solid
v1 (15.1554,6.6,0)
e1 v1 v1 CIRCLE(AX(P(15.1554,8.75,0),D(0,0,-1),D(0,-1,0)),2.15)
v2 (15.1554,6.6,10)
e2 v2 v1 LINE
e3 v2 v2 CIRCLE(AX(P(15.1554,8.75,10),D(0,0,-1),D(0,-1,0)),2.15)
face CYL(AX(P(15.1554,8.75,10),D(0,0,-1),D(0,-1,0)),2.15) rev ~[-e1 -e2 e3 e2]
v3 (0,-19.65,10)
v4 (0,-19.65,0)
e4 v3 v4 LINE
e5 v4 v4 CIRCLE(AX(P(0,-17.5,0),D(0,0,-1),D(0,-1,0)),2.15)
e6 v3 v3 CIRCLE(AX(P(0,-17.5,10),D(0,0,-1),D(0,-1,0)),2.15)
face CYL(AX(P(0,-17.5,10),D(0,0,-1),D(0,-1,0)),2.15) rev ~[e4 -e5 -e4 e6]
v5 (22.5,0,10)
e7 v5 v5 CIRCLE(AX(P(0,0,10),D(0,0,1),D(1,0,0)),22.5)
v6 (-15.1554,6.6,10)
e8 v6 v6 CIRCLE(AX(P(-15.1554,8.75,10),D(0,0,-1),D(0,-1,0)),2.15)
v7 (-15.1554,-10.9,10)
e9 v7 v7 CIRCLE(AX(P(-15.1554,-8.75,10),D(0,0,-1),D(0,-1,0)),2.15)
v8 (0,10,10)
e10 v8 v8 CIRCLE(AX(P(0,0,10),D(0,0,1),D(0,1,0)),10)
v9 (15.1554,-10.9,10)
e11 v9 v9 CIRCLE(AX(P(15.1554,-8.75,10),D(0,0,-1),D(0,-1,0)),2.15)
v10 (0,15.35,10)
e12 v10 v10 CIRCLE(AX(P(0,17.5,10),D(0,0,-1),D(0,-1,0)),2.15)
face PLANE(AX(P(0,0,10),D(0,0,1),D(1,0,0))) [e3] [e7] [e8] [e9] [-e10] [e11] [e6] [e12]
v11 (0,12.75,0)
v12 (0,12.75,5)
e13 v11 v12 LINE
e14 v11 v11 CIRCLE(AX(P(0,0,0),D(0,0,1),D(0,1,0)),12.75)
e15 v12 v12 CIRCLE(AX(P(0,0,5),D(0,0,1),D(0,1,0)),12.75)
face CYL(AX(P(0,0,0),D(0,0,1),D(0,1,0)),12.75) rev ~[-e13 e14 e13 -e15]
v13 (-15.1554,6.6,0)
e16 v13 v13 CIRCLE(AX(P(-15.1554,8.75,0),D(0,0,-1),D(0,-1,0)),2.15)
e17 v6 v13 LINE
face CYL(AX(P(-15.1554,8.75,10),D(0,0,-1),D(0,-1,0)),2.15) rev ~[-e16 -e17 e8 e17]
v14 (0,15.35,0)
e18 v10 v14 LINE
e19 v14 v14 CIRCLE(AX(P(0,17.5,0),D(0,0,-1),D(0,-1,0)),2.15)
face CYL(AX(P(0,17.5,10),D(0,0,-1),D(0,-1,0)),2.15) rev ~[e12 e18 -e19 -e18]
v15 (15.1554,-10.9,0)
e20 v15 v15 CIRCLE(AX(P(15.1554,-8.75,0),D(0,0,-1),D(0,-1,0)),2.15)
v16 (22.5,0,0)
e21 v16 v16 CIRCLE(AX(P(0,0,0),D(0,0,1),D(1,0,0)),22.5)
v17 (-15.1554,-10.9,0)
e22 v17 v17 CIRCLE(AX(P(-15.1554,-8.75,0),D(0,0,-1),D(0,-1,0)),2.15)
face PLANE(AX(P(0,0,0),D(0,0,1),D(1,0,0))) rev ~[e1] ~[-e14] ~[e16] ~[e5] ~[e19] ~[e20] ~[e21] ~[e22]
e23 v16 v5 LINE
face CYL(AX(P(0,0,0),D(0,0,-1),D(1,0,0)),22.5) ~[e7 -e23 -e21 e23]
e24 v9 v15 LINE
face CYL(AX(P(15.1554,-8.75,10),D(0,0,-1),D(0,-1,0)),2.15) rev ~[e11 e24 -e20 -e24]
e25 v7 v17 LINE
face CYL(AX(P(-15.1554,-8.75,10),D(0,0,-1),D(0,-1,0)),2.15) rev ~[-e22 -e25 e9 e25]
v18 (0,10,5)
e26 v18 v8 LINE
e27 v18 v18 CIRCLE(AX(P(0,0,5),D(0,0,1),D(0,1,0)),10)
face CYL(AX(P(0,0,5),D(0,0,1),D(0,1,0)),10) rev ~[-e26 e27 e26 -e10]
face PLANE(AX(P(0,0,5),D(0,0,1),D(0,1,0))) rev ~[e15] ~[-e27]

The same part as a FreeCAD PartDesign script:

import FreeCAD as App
import Part
import Sketcher
Q = App.Units.Quantity

doc = App.newDocument("Part")
params = doc.addObject("Spreadsheet::Sheet", "Params")
for row, (alias, value) in enumerate([
    ("sketch1_diameter", "45 mm"),
    ("pad1_length", "10 mm"),
    ("sketch2_diameter", "4.3 mm"),
    ("hole_diameter", "4.3 mm"),
    ("sketch3_diameter", "25.5 mm"),
    ("hole2_diameter", "25.5 mm"),
    ("hole2_depth", "5 mm"),
    ("sketch4_diameter", "20 mm"),
    ("hole3_diameter", "20 mm"),
], start=1):
    params.set(f"A{row}", alias)
    params.set(f"B{row}", "=" + value)
    params.setAlias(f"B{row}", alias)

body = doc.addObject("PartDesign::Body", "Body")

# Sketch on XY plane
sketch1 = body.newObject("Sketcher::SketchObject", "Sketch")
sketch1.AttachmentSupport = (doc.getObject("XY_Plane"), [""])
sketch1.MapMode = "FlatFace"
sketch1.addGeometry(Part.Circle(App.Vector(0, 0, 0), App.Vector(0, 0, 1), 22.5), False)
sketch1.addConstraint([
    Sketcher.Constraint("Coincident", 0, 3, -1, 1),
    Sketcher.Constraint("Diameter", 0, Q("45 mm")),
])
sketch1.setExpression("Constraints[1]", "Params.sketch1_diameter")
pad1 = body.newObject("PartDesign::Pad", "Pad")
pad1.Profile = sketch1
pad1.setExpression("Length", "Params.pad1_length")

# Sketch on XY plane
sketch2 = body.newObject("Sketcher::SketchObject", "Sketch001")
sketch2.AttachmentSupport = (doc.getObject("XY_Plane"), [""])
sketch2.MapMode = "FlatFace"
sketch2.AttachmentOffset = App.Placement(App.Vector(0, 0, 10), App.Rotation())
sketch2.addGeometry([
    Part.Circle(App.Vector(0, 17.5, 0), App.Vector(0, 0, 1), 2.15),  # 0
    Part.Circle(App.Vector(-15.1554, 8.75, 0), App.Vector(0, 0, 1), 2.15),  # 1
    Part.Circle(App.Vector(-15.1554, -8.75, 0), App.Vector(0, 0, 1), 2.15),  # 2
    Part.Circle(App.Vector(0, -17.5, 0), App.Vector(0, 0, 1), 2.15),  # 3
    Part.Circle(App.Vector(15.1554, -8.75, 0), App.Vector(0, 0, 1), 2.15),  # 4
    Part.Circle(App.Vector(15.1554, 8.75, 0), App.Vector(0, 0, 1), 2.15),  # 5
], False)
sketch2.addConstraint([
    Sketcher.Constraint("Equal", 0, 1),
    Sketcher.Constraint("Equal", 1, 2),
    Sketcher.Constraint("Equal", 2, 3),
    Sketcher.Constraint("Equal", 3, 4),
    Sketcher.Constraint("Equal", 4, 5),
    Sketcher.Constraint("Symmetric", 0, 3, 3, 3, -1, 1),
    Sketcher.Constraint("Symmetric", 1, 3, 4, 3, -1, 1),
    Sketcher.Constraint("Symmetric", 2, 3, 5, 3, -1, 1),
    Sketcher.Constraint("Symmetric", 2, 3, 4, 3, -2),
    Sketcher.Constraint("PointOnObject", 0, 3, -2),
    Sketcher.Constraint("Diameter", 0, Q("4.3 mm")),
    Sketcher.Constraint("DistanceY", 3, 3, 0, 3, Q("35 mm")),
    Sketcher.Constraint("DistanceY", 2, 3, 1, 3, Q("17.5 mm")),
    Sketcher.Constraint("DistanceX", 1, 3, -1, 1, Q("15.1554 mm")),
])
sketch2.setExpression("Constraints[10]", "Params.sketch2_diameter")
doc.recompute()
hole = body.newObject("PartDesign::Hole", "Hole")
hole.Profile = sketch2
hole.ThreadType = "None"
hole.setExpression("Diameter", "Params.hole_diameter")
hole.DepthType = "ThroughAll"

# Sketch on XY plane
sketch3 = body.newObject("Sketcher::SketchObject", "Sketch002")
sketch3.AttachmentSupport = (doc.getObject("XY_Plane"), [""])
sketch3.MapMode = "FlatFace"
sketch3.addGeometry(Part.Circle(App.Vector(0, 0, 0), App.Vector(0, 0, 1), 12.75), False)
sketch3.addConstraint([
    Sketcher.Constraint("Coincident", 0, 3, -1, 1),
    Sketcher.Constraint("Diameter", 0, Q("25.5 mm")),
])
sketch3.setExpression("Constraints[1]", "Params.sketch3_diameter")
doc.recompute()
hole2 = body.newObject("PartDesign::Hole", "Hole001")
hole2.Profile = sketch3
hole2.ThreadType = "None"
hole2.setExpression("Diameter", "Params.hole2_diameter")
hole2.DepthType = "Dimension"
hole2.setExpression("Depth", "Params.hole2_depth")
hole2.DrillPoint = "Flat"
hole2.Reversed = True

# Sketch on XY plane
sketch4 = body.newObject("Sketcher::SketchObject", "Sketch003")
sketch4.AttachmentSupport = (doc.getObject("XY_Plane"), [""])
sketch4.MapMode = "FlatFace"
sketch4.AttachmentOffset = App.Placement(App.Vector(0, 0, 5), App.Rotation())
sketch4.addGeometry([
    Part.Circle(App.Vector(0, 0, 0), App.Vector(0, 0, 1), 10),
    Part.Circle(App.Vector(0, 0, 0), App.Vector(0, 0, 1), 10),
], False)
sketch4.addConstraint([
    Sketcher.Constraint("Coincident", 0, 3, -1, 1),
    Sketcher.Constraint("Coincident", 1, 3, -1, 1),
    Sketcher.Constraint("Equal", 0, 1),
    Sketcher.Constraint("Diameter", 0, Q("20 mm")),
])
sketch4.setExpression("Constraints[3]", "Params.sketch4_diameter")
doc.recompute()
hole3 = body.newObject("PartDesign::Hole", "Hole002")
hole3.Profile = sketch4
hole3.ThreadType = "None"
hole3.setExpression("Diameter", "Params.hole3_diameter")
hole3.DepthType = "ThroughAll"
hole3.Reversed = True

doc.recompute()
